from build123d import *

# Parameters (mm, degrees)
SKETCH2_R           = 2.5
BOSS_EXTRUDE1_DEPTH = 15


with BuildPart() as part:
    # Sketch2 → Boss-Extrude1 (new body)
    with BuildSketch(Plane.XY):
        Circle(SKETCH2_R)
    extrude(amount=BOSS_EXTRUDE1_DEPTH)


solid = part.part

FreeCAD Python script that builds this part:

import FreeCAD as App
import Part
import Sketcher

V = App.Vector

doc = App.newDocument("Part")
body = doc.addObject("PartDesign::Body", "Body")

# Sketch on XY plane
sketch1 = body.newObject("Sketcher::SketchObject", "Sketch")
sketch1.AttachmentSupport = (doc.getObject("XY_Plane"), [""])
sketch1.MapMode = "FlatFace"
sketch1.addGeometry(Part.Circle(V(0, 0, 0), V(0, 0, 1), 2.5), False)
sketch1.addConstraint([
    Sketcher.Constraint("Coincident", 0, 3, -1, 1),
    Sketcher.Constraint("Diameter", 0, 5.0),
])
pad1 = body.newObject("PartDesign::Pad", "Pad")
pad1.Profile = sketch1
pad1.Length = 15

doc.recompute()
